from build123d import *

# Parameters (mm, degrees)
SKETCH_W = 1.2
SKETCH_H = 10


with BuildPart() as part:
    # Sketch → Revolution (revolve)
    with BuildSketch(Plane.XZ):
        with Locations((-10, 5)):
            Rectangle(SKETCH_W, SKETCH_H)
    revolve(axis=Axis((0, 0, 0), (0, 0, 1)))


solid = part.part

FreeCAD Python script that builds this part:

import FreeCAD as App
import Part
import Sketcher
from FreeCAD import Vector
Q = App.Units.Quantity

doc = App.newDocument("Part")
body = doc.addObject("PartDesign::Body", "Body")

# Sketch on XZ plane
sketch1 = body.newObject("Sketcher::SketchObject", "Sketch")
sketch1.AttachmentSupport = (doc.getObject("XZ_Plane"), [""])
sketch1.MapMode = "FlatFace"
sketch1.addGeometry([
    Part.LineSegment(Vector(-10.6, 10, 0), Vector(-10.6, 0, 0)),
    Part.LineSegment(Vector(-10.6, 0, 0), Vector(-9.4, 0, 0)),
    Part.LineSegment(Vector(-9.4, 0, 0), Vector(-9.4, 10, 0)),
    Part.LineSegment(Vector(-9.4, 10, 0), Vector(-10.6, 10, 0)),
], False)
sketch1.addConstraint([
    Sketcher.Constraint("Coincident", 0, 2, 1, 1),
    Sketcher.Constraint("Coincident", 1, 2, 2, 1),
    Sketcher.Constraint("Coincident", 2, 2, 3, 1),
    Sketcher.Constraint("Coincident", 3, 2, 0, 1),
    Sketcher.Constraint("Vertical", 0),
    Sketcher.Constraint("Horizontal", 1),
    Sketcher.Constraint("Vertical", 2),
    Sketcher.Constraint("Horizontal", 3),
    Sketcher.Constraint("PointOnObject", 0, 2, -1),
    Sketcher.Constraint("DistanceY", 0, 2, 0, 1, Q("10 mm")),
    Sketcher.Constraint("DistanceX", 1, 1, 1, 2, Q("1.2 mm")),
    Sketcher.Constraint("DistanceX", 0, 2, -1, 1, Q("10.6 mm")),
])
revolution = body.newObject("PartDesign::Revolution", "Revolution")
revolution.Profile = sketch1
revolution.ReferenceAxis = (sketch1, ["V_Axis"])
revolution.Angle = 360

doc.recompute()
